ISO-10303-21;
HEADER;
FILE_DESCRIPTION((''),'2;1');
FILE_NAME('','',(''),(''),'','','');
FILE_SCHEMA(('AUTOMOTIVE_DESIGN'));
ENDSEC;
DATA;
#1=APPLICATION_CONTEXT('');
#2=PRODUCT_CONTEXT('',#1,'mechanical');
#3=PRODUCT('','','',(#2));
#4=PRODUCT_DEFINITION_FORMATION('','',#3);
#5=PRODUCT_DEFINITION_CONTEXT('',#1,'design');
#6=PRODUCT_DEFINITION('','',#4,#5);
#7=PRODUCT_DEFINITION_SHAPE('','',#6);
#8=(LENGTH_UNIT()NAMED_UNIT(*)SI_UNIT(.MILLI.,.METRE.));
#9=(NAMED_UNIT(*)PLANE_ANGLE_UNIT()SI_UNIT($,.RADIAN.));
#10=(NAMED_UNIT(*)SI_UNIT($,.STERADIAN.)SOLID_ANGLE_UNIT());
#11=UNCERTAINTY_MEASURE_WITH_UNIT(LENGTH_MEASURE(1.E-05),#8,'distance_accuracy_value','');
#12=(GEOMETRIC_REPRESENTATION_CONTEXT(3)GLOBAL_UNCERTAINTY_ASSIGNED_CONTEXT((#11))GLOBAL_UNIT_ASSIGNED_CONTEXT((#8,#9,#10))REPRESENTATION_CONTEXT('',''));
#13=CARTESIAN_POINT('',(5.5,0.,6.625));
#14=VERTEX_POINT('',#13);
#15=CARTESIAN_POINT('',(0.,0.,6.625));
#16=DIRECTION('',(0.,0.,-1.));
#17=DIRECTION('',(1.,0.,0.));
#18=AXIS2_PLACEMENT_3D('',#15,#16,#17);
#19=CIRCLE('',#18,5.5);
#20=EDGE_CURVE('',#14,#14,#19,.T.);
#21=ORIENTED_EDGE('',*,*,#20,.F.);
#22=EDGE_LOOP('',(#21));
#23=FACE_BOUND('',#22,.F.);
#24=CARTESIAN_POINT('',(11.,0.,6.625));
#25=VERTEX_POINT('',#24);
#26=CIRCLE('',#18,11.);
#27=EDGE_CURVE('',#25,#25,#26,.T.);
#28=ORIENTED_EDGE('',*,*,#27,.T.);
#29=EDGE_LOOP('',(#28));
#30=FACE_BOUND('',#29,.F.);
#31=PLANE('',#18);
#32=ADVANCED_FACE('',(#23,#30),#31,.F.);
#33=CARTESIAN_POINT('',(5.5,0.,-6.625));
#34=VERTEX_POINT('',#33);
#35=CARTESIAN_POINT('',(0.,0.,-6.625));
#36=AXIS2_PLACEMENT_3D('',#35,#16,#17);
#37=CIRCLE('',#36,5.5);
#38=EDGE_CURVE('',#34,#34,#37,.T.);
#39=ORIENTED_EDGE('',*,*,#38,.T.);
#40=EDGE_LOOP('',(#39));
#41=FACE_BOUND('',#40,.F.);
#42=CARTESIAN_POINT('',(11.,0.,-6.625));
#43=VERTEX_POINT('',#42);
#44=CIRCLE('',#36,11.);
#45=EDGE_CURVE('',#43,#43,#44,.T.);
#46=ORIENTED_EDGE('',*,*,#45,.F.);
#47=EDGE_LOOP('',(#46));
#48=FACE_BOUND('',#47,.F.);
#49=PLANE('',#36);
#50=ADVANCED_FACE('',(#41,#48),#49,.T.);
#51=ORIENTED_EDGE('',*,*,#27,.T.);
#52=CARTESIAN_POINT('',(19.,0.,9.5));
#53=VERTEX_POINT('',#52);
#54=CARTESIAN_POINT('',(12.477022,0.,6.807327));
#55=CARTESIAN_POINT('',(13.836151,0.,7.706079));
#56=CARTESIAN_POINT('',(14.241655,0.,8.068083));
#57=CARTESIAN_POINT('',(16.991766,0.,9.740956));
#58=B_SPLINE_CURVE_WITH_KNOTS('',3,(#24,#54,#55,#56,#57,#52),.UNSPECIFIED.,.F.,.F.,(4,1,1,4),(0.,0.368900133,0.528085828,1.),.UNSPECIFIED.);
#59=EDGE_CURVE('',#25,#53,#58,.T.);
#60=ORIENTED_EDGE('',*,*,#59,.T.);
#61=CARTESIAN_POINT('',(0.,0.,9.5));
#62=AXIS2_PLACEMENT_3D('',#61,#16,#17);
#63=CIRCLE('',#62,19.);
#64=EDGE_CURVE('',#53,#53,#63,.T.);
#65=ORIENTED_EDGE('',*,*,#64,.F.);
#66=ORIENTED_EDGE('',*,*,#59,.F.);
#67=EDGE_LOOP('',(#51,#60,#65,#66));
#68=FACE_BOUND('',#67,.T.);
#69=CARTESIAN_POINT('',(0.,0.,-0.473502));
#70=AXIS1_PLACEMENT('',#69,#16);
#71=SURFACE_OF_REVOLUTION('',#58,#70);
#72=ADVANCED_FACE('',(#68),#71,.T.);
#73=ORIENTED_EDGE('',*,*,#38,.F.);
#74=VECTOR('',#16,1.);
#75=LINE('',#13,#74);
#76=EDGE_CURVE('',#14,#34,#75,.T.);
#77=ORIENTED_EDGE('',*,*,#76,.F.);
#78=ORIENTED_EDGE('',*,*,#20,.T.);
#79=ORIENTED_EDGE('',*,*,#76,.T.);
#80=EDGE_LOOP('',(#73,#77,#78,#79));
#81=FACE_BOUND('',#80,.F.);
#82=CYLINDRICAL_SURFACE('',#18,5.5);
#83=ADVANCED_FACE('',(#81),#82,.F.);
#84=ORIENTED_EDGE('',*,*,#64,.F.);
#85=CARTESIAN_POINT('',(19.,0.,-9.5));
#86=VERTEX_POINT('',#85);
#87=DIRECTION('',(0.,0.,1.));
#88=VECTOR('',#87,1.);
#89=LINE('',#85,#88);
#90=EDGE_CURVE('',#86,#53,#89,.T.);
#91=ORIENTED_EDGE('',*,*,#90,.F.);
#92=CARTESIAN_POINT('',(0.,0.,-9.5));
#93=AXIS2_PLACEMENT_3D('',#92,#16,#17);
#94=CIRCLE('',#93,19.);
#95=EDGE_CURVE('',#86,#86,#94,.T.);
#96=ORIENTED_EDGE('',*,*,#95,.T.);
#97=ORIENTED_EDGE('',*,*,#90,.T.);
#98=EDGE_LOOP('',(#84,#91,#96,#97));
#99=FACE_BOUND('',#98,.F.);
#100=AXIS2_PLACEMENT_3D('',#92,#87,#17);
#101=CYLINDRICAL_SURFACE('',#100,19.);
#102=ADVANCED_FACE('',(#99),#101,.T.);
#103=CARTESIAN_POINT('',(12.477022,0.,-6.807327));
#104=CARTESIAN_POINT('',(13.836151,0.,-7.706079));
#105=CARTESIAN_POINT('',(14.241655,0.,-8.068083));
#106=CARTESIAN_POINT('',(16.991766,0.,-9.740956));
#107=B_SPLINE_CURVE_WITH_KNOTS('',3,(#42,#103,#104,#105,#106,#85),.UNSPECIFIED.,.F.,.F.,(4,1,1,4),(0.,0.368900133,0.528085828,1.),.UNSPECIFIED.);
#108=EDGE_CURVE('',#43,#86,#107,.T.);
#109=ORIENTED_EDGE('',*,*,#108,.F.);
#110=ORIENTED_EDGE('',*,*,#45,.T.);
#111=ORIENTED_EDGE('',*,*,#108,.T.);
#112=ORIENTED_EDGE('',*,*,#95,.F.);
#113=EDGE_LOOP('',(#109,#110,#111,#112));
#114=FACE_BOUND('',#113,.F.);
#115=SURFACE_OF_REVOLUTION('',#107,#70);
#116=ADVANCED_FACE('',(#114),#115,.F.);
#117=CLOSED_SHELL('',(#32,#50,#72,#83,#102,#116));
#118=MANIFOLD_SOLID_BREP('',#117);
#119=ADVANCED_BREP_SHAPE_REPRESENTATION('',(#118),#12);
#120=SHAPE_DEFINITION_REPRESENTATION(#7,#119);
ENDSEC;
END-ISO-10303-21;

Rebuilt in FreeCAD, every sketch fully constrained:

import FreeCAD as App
import Part
import Sketcher
from FreeCAD import Vector
Q = App.Units.Quantity

doc = App.newDocument("Part")
body = doc.addObject("PartDesign::Body", "Body")

sketch1 = doc.addObject("Sketcher::SketchObject", "Sketch")
body.addObject(sketch1)
sketch1.AttachmentSupport = (doc.XZ_Plane, [""])
sketch1.MapMode = "FlatFace"
sketch1.addGeometry(Part.LineSegment(Vector(11, 6.625, 0), Vector(5.5, 6.625, 0)), False)
sketch1.addGeometry(Part.LineSegment(Vector(5.5, 6.625, 0), Vector(5.5, -6.625, 0)), False)
sketch1.addGeometry(Part.LineSegment(Vector(5.5, -6.625, 0), Vector(11, -6.625, 0)), False)
sketch1.addGeometry(Part.BSplineCurve([Vector(11, -6.625, 0), Vector(12.477022, -6.807327, 0), Vector(13.836151, -7.706079, 0), Vector(14.241655, -8.068083, 0), Vector(16.991766, -9.740956, 0), Vector(19, -9.5, 0)], [4, 1, 1, 4], [0, 0.368900133, 0.528085828, 1], False, 3, [1, 1, 1, 1, 1, 1], False), False)
sketch1.addGeometry(Part.LineSegment(Vector(19, -9.5, 0), Vector(19, 9.5, 0)), False)
sketch1.addGeometry(Part.BSplineCurve([Vector(11, 6.625, 0), Vector(12.477022, 6.807327, 0), Vector(13.836151, 7.706079, 0), Vector(14.241655, 8.068083, 0), Vector(16.991766, 9.740956, 0), Vector(19, 9.5, 0)], [4, 1, 1, 4], [0, 0.368900133, 0.528085828, 1], False, 3, [1, 1, 1, 1, 1, 1], False), False)
sketch1.addConstraint(Sketcher.Constraint("Block", 3))
sketch1.addConstraint(Sketcher.Constraint("Block", 5))
sketch1.addConstraint(Sketcher.Constraint("Coincident", 0, 2, 1, 1))
sketch1.addConstraint(Sketcher.Constraint("Coincident", 1, 2, 2, 1))
sketch1.addConstraint(Sketcher.Constraint("Coincident", 2, 2, 3, 1))
sketch1.addConstraint(Sketcher.Constraint("Coincident", 3, 2, 4, 1))
sketch1.addConstraint(Sketcher.Constraint("Coincident", 4, 2, 5, 2))
sketch1.addConstraint(Sketcher.Constraint("Coincident", 5, 1, 0, 1))
sketch1.addConstraint(Sketcher.Constraint("Horizontal", 0))
sketch1.addConstraint(Sketcher.Constraint("Vertical", 1))
sketch1.addConstraint(Sketcher.Constraint("Horizontal", 2))
sketch1.addConstraint(Sketcher.Constraint("DistanceX", 0, 2, 0, 1, Q("5.5 mm")))
revolution = doc.addObject("PartDesign::Revolution", "Revolution")
body.addObject(revolution)
revolution.Profile = sketch1
revolution.ReferenceAxis = (sketch1, ["V_Axis"])
revolution.Angle = 360

doc.recompute()
